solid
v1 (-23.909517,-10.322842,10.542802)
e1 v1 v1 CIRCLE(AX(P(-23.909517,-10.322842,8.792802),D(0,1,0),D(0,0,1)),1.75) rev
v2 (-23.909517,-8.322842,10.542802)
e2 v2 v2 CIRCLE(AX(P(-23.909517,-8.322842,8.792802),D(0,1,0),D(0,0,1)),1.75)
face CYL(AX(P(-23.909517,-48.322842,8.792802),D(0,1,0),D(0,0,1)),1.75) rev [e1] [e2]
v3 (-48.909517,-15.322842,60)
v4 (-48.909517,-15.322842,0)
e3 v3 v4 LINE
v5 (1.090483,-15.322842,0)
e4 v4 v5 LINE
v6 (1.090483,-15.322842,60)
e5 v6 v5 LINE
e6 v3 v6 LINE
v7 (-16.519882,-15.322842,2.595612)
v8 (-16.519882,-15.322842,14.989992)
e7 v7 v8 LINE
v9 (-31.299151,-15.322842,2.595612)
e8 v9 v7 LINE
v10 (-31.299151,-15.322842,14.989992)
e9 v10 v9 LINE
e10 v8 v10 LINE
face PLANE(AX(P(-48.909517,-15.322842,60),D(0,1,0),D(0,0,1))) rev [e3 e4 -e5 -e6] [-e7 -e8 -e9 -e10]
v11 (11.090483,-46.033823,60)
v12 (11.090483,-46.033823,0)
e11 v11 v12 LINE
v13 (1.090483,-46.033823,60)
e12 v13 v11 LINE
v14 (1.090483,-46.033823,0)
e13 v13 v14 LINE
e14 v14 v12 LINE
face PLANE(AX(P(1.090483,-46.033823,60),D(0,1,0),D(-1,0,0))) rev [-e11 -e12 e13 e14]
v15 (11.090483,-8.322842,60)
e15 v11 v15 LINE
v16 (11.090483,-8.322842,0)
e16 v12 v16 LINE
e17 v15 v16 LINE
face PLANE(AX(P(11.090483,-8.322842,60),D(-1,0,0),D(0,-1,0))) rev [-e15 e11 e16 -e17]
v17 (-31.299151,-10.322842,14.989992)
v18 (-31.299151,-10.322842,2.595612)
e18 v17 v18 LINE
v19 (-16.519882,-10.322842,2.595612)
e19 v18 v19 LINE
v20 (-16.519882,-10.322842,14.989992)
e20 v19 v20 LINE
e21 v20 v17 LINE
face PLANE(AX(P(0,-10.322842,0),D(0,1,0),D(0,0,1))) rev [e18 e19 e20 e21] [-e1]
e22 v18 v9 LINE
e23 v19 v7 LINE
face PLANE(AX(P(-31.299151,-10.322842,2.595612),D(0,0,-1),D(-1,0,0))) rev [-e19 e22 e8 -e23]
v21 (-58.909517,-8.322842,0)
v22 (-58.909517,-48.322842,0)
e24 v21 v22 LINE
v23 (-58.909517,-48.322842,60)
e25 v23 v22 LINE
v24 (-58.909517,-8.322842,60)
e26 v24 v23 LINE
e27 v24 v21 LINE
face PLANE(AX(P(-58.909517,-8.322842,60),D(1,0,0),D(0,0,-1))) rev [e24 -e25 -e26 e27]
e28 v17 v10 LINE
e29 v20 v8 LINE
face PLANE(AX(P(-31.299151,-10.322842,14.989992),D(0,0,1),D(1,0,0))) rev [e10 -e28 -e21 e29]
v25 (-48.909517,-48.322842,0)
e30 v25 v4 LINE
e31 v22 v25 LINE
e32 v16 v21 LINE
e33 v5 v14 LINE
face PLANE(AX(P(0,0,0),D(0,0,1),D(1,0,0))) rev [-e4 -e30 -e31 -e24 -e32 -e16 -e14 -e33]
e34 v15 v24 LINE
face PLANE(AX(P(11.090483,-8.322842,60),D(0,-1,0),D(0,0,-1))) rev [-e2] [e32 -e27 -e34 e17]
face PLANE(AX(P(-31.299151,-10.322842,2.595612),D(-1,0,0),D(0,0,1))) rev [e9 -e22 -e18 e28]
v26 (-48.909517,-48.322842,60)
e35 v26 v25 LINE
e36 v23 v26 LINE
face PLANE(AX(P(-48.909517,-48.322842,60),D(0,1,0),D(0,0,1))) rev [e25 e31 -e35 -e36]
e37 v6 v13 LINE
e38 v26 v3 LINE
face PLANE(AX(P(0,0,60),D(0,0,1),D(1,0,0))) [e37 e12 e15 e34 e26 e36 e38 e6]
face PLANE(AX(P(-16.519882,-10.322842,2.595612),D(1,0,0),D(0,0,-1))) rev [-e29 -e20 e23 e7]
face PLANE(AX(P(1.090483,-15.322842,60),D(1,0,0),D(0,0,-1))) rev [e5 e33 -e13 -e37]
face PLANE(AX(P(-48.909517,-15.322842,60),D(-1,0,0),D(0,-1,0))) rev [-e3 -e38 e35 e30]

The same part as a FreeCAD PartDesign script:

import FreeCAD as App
import Part
import Sketcher
Q = App.Units.Quantity


def add_polygon(sketch, points):
    """Adds a closed chain of lines whose ends are joined by coincident constraints."""
    first, n = sketch.GeometryCount, len(points)
    for a, b in zip(points, points[1:] + points[:1]):
        sketch.addGeometry(Part.LineSegment(App.Vector(*a, 0), App.Vector(*b, 0)), False)
    for i in range(n):
        sketch.addConstraint(Sketcher.Constraint("Coincident", first + i, 2, first + (i + 1) % n, 1))

doc = App.newDocument("Part")
params = doc.addObject("Spreadsheet::Sheet", "Params")
for row, (alias, value) in enumerate([
    ("sketch1_width", "10 mm"),
    ("sketch1_width2", "50 mm"),
    ("sketch1_height", "40 mm"),
    ("sketch1_height2", "33 mm"),
    ("pad1_length", "60 mm"),
    ("sketch2_diameter", "3.5 mm"),
    ("pocket2_length", "5 mm"),
], start=1):
    params.set(f"A{row}", alias)
    params.set(f"B{row}", "=" + value)
    params.setAlias(f"B{row}", alias)

body = doc.addObject("PartDesign::Body", "Body")

sketch1 = doc.addObject("Sketcher::SketchObject", "Sketch")
body.addObject(sketch1)
sketch1.AttachmentSupport = (doc.XY_Plane, [""])
sketch1.MapMode = "FlatFace"
add_polygon(sketch1, [(-58.909517, -8.322842), (-58.909517, -48.322842), (-48.909517, -48.322842), (-48.909517, -15.322842), (1.090483, -15.322842), (1.090483, -46.033823), (11.090483, -46.033823), (11.090483, -8.322842)])
sketch1.addConstraint(Sketcher.Constraint("Vertical", 0))
sketch1.addConstraint(Sketcher.Constraint("Horizontal", 1))
sketch1.addConstraint(Sketcher.Constraint("Vertical", 2))
sketch1.addConstraint(Sketcher.Constraint("Horizontal", 3))
sketch1.addConstraint(Sketcher.Constraint("Vertical", 4))
sketch1.addConstraint(Sketcher.Constraint("Horizontal", 5))
sketch1.addConstraint(Sketcher.Constraint("Vertical", 6))
sketch1.addConstraint(Sketcher.Constraint("Horizontal", 7))
sketch1.addConstraint(Sketcher.Constraint("Equal", 1, 5))
sketch1.addConstraint(Sketcher.Constraint("DistanceX", 1, 1, 1, 2, Q("10 mm")))
sketch1.addConstraint(Sketcher.Constraint("DistanceX", 3, 1, 3, 2, Q("50 mm")))
sketch1.addConstraint(Sketcher.Constraint("DistanceY", 0, 2, 0, 1, Q("40 mm")))
sketch1.addConstraint(Sketcher.Constraint("DistanceY", 2, 1, 2, 2, Q("33 mm")))
sketch1.addConstraint(Sketcher.Constraint("DistanceY", 4, 2, 4, 1, Q("30.710981 mm")))
sketch1.addConstraint(Sketcher.Constraint("DistanceX", 0, 2, -1, 1, Q("58.909517 mm")))
sketch1.addConstraint(Sketcher.Constraint("DistanceY", 0, 2, -1, 1, Q("48.322842 mm")))
sketch1.setExpression("Constraints[17]", "Params.sketch1_width")
sketch1.setExpression("Constraints[18]", "Params.sketch1_width2")
sketch1.setExpression("Constraints[19]", "Params.sketch1_height")
sketch1.setExpression("Constraints[20]", "Params.sketch1_height2")
pad1 = doc.addObject("PartDesign::Pad", "Pad")
body.addObject(pad1)
pad1.Profile = sketch1
pad1.setExpression("Length", "Params.pad1_length")

sketch2 = doc.addObject("Sketcher::SketchObject", "Sketch001")
body.addObject(sketch2)
sketch2.AttachmentSupport = (doc.XZ_Plane, [""])
sketch2.MapMode = "FlatFace"
sketch2.AttachmentOffset = App.Placement(App.Vector(0, 0, 15.322842), App.Rotation())
sketch2.addGeometry(Part.Circle(App.Vector(-23.909517, 8.792802, 0), App.Vector(0, 0, 1), 1.75), False)
sketch2.addConstraint(Sketcher.Constraint("Diameter", 0, Q("3.5 mm")))
sketch2.addConstraint(Sketcher.Constraint("DistanceY", -1, 1, 0, 3, Q("8.792802 mm")))
sketch2.addConstraint(Sketcher.Constraint("DistanceX", 0, 3, -1, 1, Q("23.909517 mm")))
sketch2.setExpression("Constraints[0]", "Params.sketch2_diameter")
pocket1 = doc.addObject("PartDesign::Pocket", "Pocket")
body.addObject(pocket1)
pocket1.Profile = sketch2
pocket1.Type = "ThroughAll"
pocket1.Midplane = True

sketch3 = doc.addObject("Sketcher::SketchObject", "Sketch002")
body.addObject(sketch3)
sketch3.AttachmentSupport = (doc.XZ_Plane, [""])
sketch3.MapMode = "FlatFace"
sketch3.AttachmentOffset = App.Placement(App.Vector(0, 0, 15.322842), App.Rotation())
add_polygon(sketch3, [(-16.519882, 2.595612), (-16.519882, 14.989992), (-31.299151, 14.989992), (-31.299151, 2.595612)])
sketch3.addConstraint(Sketcher.Constraint("Vertical", 0))
sketch3.addConstraint(Sketcher.Constraint("Horizontal", 1))
sketch3.addConstraint(Sketcher.Constraint("Vertical", 2))
sketch3.addConstraint(Sketcher.Constraint("Horizontal", 3))
sketch3.addConstraint(Sketcher.Constraint("DistanceX", 1, 2, 1, 1, Q("14.779269 mm")))
sketch3.addConstraint(Sketcher.Constraint("DistanceY", 0, 1, 0, 2, Q("12.394379 mm")))
sketch3.addConstraint(Sketcher.Constraint("DistanceX", 0, 2, -1, 1, Q("16.519882 mm")))
sketch3.addConstraint(Sketcher.Constraint("DistanceY", -1, 1, 0, 2, Q("14.989992 mm")))
pocket2 = doc.addObject("PartDesign::Pocket", "Pocket001")
body.addObject(pocket2)
pocket2.Profile = sketch3
pocket2.setExpression("Length", "Params.pocket2_length")

doc.recompute()
